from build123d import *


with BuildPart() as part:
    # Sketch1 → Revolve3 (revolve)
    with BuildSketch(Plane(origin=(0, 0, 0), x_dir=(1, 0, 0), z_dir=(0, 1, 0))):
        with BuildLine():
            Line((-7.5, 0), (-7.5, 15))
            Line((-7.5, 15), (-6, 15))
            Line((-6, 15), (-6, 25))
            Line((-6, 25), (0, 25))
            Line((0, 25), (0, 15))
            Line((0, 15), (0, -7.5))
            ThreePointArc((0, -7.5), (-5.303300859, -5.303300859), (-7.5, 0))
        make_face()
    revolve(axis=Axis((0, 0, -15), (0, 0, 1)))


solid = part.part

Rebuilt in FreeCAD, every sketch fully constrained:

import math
import FreeCAD as App
import Part
import Sketcher
from FreeCAD import Vector

doc = App.newDocument("Part")
body = doc.addObject("PartDesign::Body", "Body")

# Sketch on XZ plane
sketch1 = body.newObject("Sketcher::SketchObject", "Sketch")
sketch1.AttachmentSupport = (doc.getObject("XZ_Plane"), [""])
sketch1.MapMode = "FlatFace"
sketch1.addGeometry(Part.LineSegment(Vector(-7.5, -15, 0), Vector(-7.5, 0, 0)), False)
sketch1.addGeometry(Part.ArcOfCircle(Part.Circle(Vector(0, 0, 0), Vector(0, 0, 1), 7.5), math.radians(90), math.radians(180)), False)
sketch1.addGeometry(Part.LineSegment(Vector(0, 7.5, 0), Vector(0, -25, 0)), False)
sketch1.addGeometry(Part.LineSegment(Vector(0, -25, 0), Vector(-6, -25, 0)), False)
sketch1.addGeometry(Part.LineSegment(Vector(-6, -25, 0), Vector(-6, -15, 0)), False)
sketch1.addGeometry(Part.LineSegment(Vector(-6, -15, 0), Vector(-7.5, -15, 0)), False)
sketch1.addConstraint(Sketcher.Constraint("Tangent", 0, 2, 1, 2))
sketch1.addConstraint(Sketcher.Constraint("Coincident", 1, 1, 2, 1))
sketch1.addConstraint(Sketcher.Constraint("Coincident", 2, 2, 3, 1))
sketch1.addConstraint(Sketcher.Constraint("Coincident", 3, 2, 4, 1))
sketch1.addConstraint(Sketcher.Constraint("Coincident", 4, 2, 5, 1))
sketch1.addConstraint(Sketcher.Constraint("Coincident", 5, 2, 0, 1))
sketch1.addConstraint(Sketcher.Constraint("Vertical", 0))
sketch1.addConstraint(Sketcher.Constraint("Vertical", 2))
sketch1.addConstraint(Sketcher.Constraint("Horizontal", 3))
sketch1.addConstraint(Sketcher.Constraint("Vertical", 4))
sketch1.addConstraint(Sketcher.Constraint("Horizontal", 5))
sketch1.addConstraint(Sketcher.Constraint("Coincident", 1, 3, -1, 1))
sketch1.addConstraint(Sketcher.Constraint("PointOnObject", 1, 1, -2))
sketch1.addConstraint(Sketcher.Constraint("Radius", 1, 7.5))
sketch1.addConstraint(Sketcher.Constraint("DistanceX", 3, 2, 3, 1, 6.0))
sketch1.addConstraint(Sketcher.Constraint("DistanceY", 0, 1, 0, 2, 15.0))
sketch1.addConstraint(Sketcher.Constraint("DistanceY", 4, 1, 4, 2, 10.0))
revolution = body.newObject("PartDesign::Revolution", "Revolution")
revolution.Profile = sketch1
revolution.ReferenceAxis = (sketch1, ["V_Axis"])
revolution.Angle = 360

doc.recompute()
